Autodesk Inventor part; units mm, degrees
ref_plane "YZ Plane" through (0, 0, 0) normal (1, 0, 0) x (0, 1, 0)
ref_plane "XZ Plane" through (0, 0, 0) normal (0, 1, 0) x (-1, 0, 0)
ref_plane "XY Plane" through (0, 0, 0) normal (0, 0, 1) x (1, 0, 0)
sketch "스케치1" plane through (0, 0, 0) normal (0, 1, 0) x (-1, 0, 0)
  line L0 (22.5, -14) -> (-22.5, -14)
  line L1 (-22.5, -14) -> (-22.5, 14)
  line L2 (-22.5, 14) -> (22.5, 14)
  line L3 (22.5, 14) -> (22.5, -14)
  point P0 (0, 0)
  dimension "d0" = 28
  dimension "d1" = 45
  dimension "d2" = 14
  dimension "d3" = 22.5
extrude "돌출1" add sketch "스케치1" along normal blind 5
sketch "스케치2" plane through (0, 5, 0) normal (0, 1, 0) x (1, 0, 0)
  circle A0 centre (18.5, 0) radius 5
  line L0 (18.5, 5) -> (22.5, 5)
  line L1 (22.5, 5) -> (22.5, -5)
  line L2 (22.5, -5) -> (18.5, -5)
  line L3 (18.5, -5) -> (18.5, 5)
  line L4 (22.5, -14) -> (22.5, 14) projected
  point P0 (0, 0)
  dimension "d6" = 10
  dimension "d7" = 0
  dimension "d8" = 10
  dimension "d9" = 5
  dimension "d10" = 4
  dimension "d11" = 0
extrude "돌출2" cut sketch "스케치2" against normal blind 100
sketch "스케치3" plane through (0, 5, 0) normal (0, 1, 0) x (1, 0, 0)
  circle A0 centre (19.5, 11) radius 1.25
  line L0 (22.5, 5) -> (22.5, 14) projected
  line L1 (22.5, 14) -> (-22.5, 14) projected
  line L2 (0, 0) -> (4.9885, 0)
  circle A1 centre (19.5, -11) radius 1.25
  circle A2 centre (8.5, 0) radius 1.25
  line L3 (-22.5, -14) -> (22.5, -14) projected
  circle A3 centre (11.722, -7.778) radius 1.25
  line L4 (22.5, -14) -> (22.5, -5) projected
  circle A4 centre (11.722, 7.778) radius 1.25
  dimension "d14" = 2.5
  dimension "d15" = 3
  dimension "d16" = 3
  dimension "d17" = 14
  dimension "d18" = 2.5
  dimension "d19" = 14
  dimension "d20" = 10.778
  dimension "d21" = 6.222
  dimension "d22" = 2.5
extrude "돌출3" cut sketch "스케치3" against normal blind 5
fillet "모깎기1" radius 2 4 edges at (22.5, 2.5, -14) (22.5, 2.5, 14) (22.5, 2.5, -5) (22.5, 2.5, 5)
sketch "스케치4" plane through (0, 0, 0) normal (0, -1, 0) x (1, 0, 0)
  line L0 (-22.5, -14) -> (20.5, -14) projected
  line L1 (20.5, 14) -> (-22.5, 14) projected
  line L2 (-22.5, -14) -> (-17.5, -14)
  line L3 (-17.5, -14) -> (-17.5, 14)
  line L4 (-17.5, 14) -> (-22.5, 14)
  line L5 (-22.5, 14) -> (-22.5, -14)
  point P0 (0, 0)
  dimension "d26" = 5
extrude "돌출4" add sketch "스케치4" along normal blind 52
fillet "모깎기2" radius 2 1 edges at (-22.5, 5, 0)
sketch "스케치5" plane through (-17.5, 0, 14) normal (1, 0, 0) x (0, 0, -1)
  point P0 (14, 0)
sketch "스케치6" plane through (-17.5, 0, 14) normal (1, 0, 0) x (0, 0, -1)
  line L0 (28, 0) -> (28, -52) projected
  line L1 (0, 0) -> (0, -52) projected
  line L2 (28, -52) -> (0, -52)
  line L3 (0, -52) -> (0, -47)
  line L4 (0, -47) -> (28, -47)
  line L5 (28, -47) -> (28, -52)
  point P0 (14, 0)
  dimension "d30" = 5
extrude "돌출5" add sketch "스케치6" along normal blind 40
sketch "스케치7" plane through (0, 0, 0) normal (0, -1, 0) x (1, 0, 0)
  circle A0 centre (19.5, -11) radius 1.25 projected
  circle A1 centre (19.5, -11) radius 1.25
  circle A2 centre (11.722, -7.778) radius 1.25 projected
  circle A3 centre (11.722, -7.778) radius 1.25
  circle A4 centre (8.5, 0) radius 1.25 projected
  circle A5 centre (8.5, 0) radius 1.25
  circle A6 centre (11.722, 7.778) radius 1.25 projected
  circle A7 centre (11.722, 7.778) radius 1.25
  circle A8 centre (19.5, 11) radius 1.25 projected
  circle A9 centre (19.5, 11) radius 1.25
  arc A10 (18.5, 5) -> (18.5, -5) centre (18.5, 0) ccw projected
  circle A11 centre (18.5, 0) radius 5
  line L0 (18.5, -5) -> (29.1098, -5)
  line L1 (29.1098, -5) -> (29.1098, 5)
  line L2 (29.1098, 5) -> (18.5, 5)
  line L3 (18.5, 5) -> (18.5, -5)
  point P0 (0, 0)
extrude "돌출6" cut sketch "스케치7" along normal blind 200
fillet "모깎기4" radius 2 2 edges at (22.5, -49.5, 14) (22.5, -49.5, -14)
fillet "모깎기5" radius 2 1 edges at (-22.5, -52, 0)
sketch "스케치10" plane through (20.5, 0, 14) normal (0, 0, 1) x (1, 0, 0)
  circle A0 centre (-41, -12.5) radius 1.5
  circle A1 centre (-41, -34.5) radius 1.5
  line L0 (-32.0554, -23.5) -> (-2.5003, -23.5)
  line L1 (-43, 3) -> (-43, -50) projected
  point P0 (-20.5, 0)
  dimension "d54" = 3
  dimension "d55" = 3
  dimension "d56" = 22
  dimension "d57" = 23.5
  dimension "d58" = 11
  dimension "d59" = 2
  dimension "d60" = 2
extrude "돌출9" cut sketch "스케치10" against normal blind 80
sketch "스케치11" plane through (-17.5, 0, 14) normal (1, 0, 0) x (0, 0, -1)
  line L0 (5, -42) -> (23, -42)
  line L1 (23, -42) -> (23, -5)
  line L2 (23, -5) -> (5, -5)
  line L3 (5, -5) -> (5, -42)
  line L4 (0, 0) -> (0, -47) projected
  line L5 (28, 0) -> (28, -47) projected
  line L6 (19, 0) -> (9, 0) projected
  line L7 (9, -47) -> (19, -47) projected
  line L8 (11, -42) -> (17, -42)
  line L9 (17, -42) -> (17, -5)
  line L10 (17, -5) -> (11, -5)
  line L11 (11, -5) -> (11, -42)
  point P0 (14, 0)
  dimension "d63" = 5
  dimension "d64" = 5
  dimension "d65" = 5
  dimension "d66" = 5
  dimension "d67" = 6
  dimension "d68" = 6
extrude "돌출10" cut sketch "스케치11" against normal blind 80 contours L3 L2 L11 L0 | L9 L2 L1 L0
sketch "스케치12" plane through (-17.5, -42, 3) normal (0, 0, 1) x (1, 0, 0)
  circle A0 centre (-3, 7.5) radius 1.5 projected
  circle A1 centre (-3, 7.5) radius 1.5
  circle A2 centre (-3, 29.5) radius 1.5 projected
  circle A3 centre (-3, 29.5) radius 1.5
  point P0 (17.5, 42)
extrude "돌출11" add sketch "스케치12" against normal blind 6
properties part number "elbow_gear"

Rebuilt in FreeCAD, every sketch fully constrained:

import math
import FreeCAD as App
import Part
import Sketcher

V = App.Vector


def edges_at(feature, points):
    """Names of the edges that pass closest to the given points."""
    edges = feature.Shape.Edges
    near = lambda p: min(range(len(edges)), key=lambda i: edges[i].distToShape(Part.Vertex(*p))[0])
    return sorted({f"Edge{near(p) + 1}" for p in points})

doc = App.newDocument("Part")
body = doc.addObject("PartDesign::Body", "Body")

# Sketch on XZ plane
sketch1 = body.newObject("Sketcher::SketchObject", "Sketch")
sketch1.AttachmentSupport = (doc.getObject("XZ_Plane"), [""])
sketch1.MapMode = "FlatFace"
sketch1.addGeometry([
    Part.LineSegment(V(22.5, -14, 0), V(-22.5, -14, 0)),
    Part.LineSegment(V(-22.5, -14, 0), V(-22.5, 14, 0)),
    Part.LineSegment(V(-22.5, 14, 0), V(22.5, 14, 0)),
    Part.LineSegment(V(22.5, 14, 0), V(22.5, -14, 0)),
], False)
sketch1.addConstraint([
    Sketcher.Constraint("Coincident", 0, 2, 1, 1),
    Sketcher.Constraint("Coincident", 1, 2, 2, 1),
    Sketcher.Constraint("Coincident", 2, 2, 3, 1),
    Sketcher.Constraint("Coincident", 3, 2, 0, 1),
    Sketcher.Constraint("Horizontal", 0),
    Sketcher.Constraint("Vertical", 1),
    Sketcher.Constraint("Horizontal", 2),
    Sketcher.Constraint("Vertical", 3),
    Sketcher.Constraint("Symmetric", 0, 2, 2, 2, -1, 1),
    Sketcher.Constraint("DistanceX", 0, 2, 0, 1, 45.0),
    Sketcher.Constraint("DistanceY", 1, 1, 1, 2, 28.0),
])
pad1 = body.newObject("PartDesign::Pad", "Pad")
pad1.Profile = sketch1
pad1.Length = 5
pad1.Reversed = True

# Sketch on XZ plane
sketch2 = body.newObject("Sketcher::SketchObject", "Sketch001")
sketch2.AttachmentSupport = (doc.getObject("XZ_Plane"), [""])
sketch2.MapMode = "FlatFace"
sketch2.AttachmentOffset = App.Placement(V(0, 0, -5), App.Rotation())
sketch2.addGeometry([
    Part.ArcOfCircle(Part.Circle(V(18.5, 0, 0), V(0, 0, 1), 5), math.radians(90), math.radians(270)),  # 0
    Part.LineSegment(V(18.5, 5, 0), V(22.5, 5, 0)),  # 1
    Part.LineSegment(V(22.5, 5, 0), V(22.5, 3, 0)),  # 2
    Part.ArcOfCircle(Part.Circle(V(18.5, 0, 0), V(0, 0, 1), 5), math.radians(-36.869898), math.radians(36.869898)),  # 3
    Part.LineSegment(V(22.5, -3, 0), V(22.5, -5, 0)),  # 4
    Part.LineSegment(V(22.5, -5, 0), V(18.5, -5, 0)),  # 5
], False)
sketch2.addConstraint([
    Sketcher.Constraint("Tangent", 0, 1, 1, 1),
    Sketcher.Constraint("Coincident", 1, 2, 2, 1),
    Sketcher.Constraint("Coincident", 2, 2, 3, 2),
    Sketcher.Constraint("Coincident", 3, 1, 4, 1),
    Sketcher.Constraint("Coincident", 4, 2, 5, 1),
    Sketcher.Constraint("Tangent", 5, 2, 0, 2),
    Sketcher.Constraint("Horizontal", 1),
    Sketcher.Constraint("Vertical", 2),
    Sketcher.Constraint("Vertical", 4),
    Sketcher.Constraint("Horizontal", 5),
    Sketcher.Constraint("Coincident", 3, 3, 0, 3),
    Sketcher.Constraint("Equal", 0, 3),
    Sketcher.Constraint("Symmetric", 2, 2, 3, 1, -1),
    Sketcher.Constraint("Radius", 0, 5.0),
    Sketcher.Constraint("DistanceX", 1, 1, 1, 2, 4.0),
    Sketcher.Constraint("DistanceX", -1, 1, 0, 3, 18.5),
])
pocket1 = body.newObject("PartDesign::Pocket", "Pocket")
pocket1.Profile = sketch2
pocket1.Length = 100
pocket1.Reversed = True

# Sketch on XZ plane
sketch3 = body.newObject("Sketcher::SketchObject", "Sketch002")
sketch3.AttachmentSupport = (doc.getObject("XZ_Plane"), [""])
sketch3.MapMode = "FlatFace"
sketch3.AttachmentOffset = App.Placement(V(0, 0, -5), App.Rotation())
sketch3.addGeometry([
    Part.Circle(V(19.5, -11, 0), V(0, 0, 1), 1.25),  # 0
    Part.Circle(V(19.5, 11, 0), V(0, 0, 1), 1.25),  # 1
    Part.Circle(V(8.5, 0, 0), V(0, 0, 1), 1.25),  # 2
    Part.Circle(V(11.722, 7.778, 0), V(0, 0, 1), 1.25),  # 3
    Part.Circle(V(11.722, -7.778, 0), V(0, 0, 1), 1.25),  # 4
], False)
sketch3.addConstraint([
    Sketcher.Constraint("Equal", 0, 1),
    Sketcher.Constraint("Equal", 1, 2),
    Sketcher.Constraint("Equal", 2, 3),
    Sketcher.Constraint("Equal", 3, 4),
    Sketcher.Constraint("Symmetric", 0, 3, 1, 3, -1),
    Sketcher.Constraint("Symmetric", 3, 3, 4, 3, -1),
    Sketcher.Constraint("PointOnObject", 2, 3, -1),
    Sketcher.Constraint("Diameter", 0, 2.5),
    Sketcher.Constraint("DistanceY", 0, 3, -1, 1, 11.0),
    Sketcher.Constraint("DistanceX", 2, 3, 0, 3, 11.0),
    Sketcher.Constraint("DistanceX", -1, 1, 0, 3, 19.5),
    Sketcher.Constraint("DistanceX", -1, 1, 3, 3, 11.722),
    Sketcher.Constraint("DistanceY", -1, 1, 3, 3, 7.778),
])
pocket2 = body.newObject("PartDesign::Pocket", "Pocket001")
pocket2.Profile = sketch3
pocket2.Length = 5
pocket2.Reversed = True
doc.recompute()

fillet = body.newObject("PartDesign::Fillet", "Fillet")
fillet.Base = (pocket2, edges_at(pocket2, [
    (22.5, 2.5, -14),
    (22.5, 2.5, 14),
    (22.5, 2.5, -5),
    (22.5, 2.5, 5),
]))
fillet.Radius = 2

# Sketch on XZ plane
sketch4 = body.newObject("Sketcher::SketchObject", "Sketch003")
sketch4.AttachmentSupport = (doc.getObject("XZ_Plane"), [""])
sketch4.MapMode = "FlatFace"
sketch4.addGeometry([
    Part.LineSegment(V(-22.5, 14, 0), V(-22.5, -14, 0)),
    Part.LineSegment(V(-22.5, -14, 0), V(-17.5, -14, 0)),
    Part.LineSegment(V(-17.5, -14, 0), V(-17.5, 14, 0)),
    Part.LineSegment(V(-17.5, 14, 0), V(-22.5, 14, 0)),
], False)
sketch4.addConstraint([
    Sketcher.Constraint("Coincident", 0, 2, 1, 1),
    Sketcher.Constraint("Coincident", 1, 2, 2, 1),
    Sketcher.Constraint("Coincident", 2, 2, 3, 1),
    Sketcher.Constraint("Coincident", 3, 2, 0, 1),
    Sketcher.Constraint("Vertical", 0),
    Sketcher.Constraint("Horizontal", 1),
    Sketcher.Constraint("Vertical", 2),
    Sketcher.Constraint("Horizontal", 3),
    Sketcher.Constraint("DistanceX", 1, 1, 1, 2, 5.0),
    Sketcher.Constraint("DistanceY", 0, 2, 0, 1, 28.0),
    Sketcher.Constraint("DistanceY", 0, 2, -1, 1, 14.0),
    Sketcher.Constraint("DistanceX", 0, 2, -1, 1, 22.5),
])
pad2 = body.newObject("PartDesign::Pad", "Pad001")
pad2.Profile = sketch4
pad2.Length = 52
doc.recompute()

fillet2 = body.newObject("PartDesign::Fillet", "Fillet001")
fillet2.Base = (pad2, edges_at(pad2, [(-22.5, 5, 0)]))
fillet2.Radius = 2

# Sketch on YZ plane
sketch5 = body.newObject("Sketcher::SketchObject", "Sketch004")
sketch5.AttachmentSupport = (doc.getObject("YZ_Plane"), [""])
sketch5.MapMode = "FlatFace"
sketch5.AttachmentOffset = App.Placement(V(0, 0, -17.5), App.Rotation())
sketch5.addGeometry([
    Part.LineSegment(V(-52, -14, 0), V(-47, -14, 0)),
    Part.LineSegment(V(-47, -14, 0), V(-47, 14, 0)),
    Part.LineSegment(V(-47, 14, 0), V(-52, 14, 0)),
    Part.LineSegment(V(-52, 14, 0), V(-52, -14, 0)),
], False)
sketch5.addConstraint([
    Sketcher.Constraint("Coincident", 0, 2, 1, 1),
    Sketcher.Constraint("Coincident", 1, 2, 2, 1),
    Sketcher.Constraint("Coincident", 2, 2, 3, 1),
    Sketcher.Constraint("Coincident", 3, 2, 0, 1),
    Sketcher.Constraint("Horizontal", 0),
    Sketcher.Constraint("Vertical", 1),
    Sketcher.Constraint("Horizontal", 2),
    Sketcher.Constraint("Vertical", 3),
    Sketcher.Constraint("DistanceX", 0, 1, 0, 2, 5.0),
    Sketcher.Constraint("DistanceY", 1, 1, 1, 2, 28.0),
    Sketcher.Constraint("DistanceX", 0, 2, -1, 1, 47.0),
    Sketcher.Constraint("DistanceY", 0, 2, -1, 1, 14.0),
])
pad3 = body.newObject("PartDesign::Pad", "Pad002")
pad3.Profile = sketch5
pad3.Length = 40

# Sketch on XZ plane
sketch6 = body.newObject("Sketcher::SketchObject", "Sketch005")
sketch6.AttachmentSupport = (doc.getObject("XZ_Plane"), [""])
sketch6.MapMode = "FlatFace"
sketch6.addGeometry([
    Part.Circle(V(19.5, -11, 0), V(0, 0, 1), 1.25),  # 0
    Part.Circle(V(11.722, -7.778, 0), V(0, 0, 1), 1.25),  # 1
    Part.Circle(V(8.5, 0, 0), V(0, 0, 1), 1.25),  # 2
    Part.Circle(V(11.722, 7.778, 0), V(0, 0, 1), 1.25),  # 3
    Part.Circle(V(19.5, 11, 0), V(0, 0, 1), 1.25),  # 4
    Part.ArcOfCircle(Part.Circle(V(18.5, 0, 0), V(0, 0, 1), 5), math.radians(90), math.radians(270)),  # 5
    Part.LineSegment(V(18.5, -5, 0), V(29.1098, -5, 0)),  # 6
    Part.LineSegment(V(29.1098, -5, 0), V(29.1098, 5, 0)),  # 7
    Part.LineSegment(V(29.1098, 5, 0), V(18.5, 5, 0)),  # 8
], False)
sketch6.addConstraint([
    Sketcher.Constraint("Tangent", 5, 2, 6, 1),
    Sketcher.Constraint("Coincident", 6, 2, 7, 1),
    Sketcher.Constraint("Coincident", 7, 2, 8, 1),
    Sketcher.Constraint("Tangent", 8, 2, 5, 1),
    Sketcher.Constraint("Horizontal", 6),
    Sketcher.Constraint("Vertical", 7),
    Sketcher.Constraint("Horizontal", 8),
    Sketcher.Constraint("Equal", 0, 1),
    Sketcher.Constraint("Equal", 1, 2),
    Sketcher.Constraint("Equal", 2, 3),
    Sketcher.Constraint("Equal", 3, 4),
    Sketcher.Constraint("Symmetric", 1, 3, 3, 3, -1),
    Sketcher.Constraint("Symmetric", 0, 3, 4, 3, -1),
    Sketcher.Constraint("PointOnObject", 2, 3, -1),
    Sketcher.Constraint("PointOnObject", 5, 3, -1),
    Sketcher.Constraint("Radius", 5, 5.0),
    Sketcher.Constraint("Diameter", 0, 2.5),
    Sketcher.Constraint("DistanceY", 0, 3, -1, 1, 11.0),
    Sketcher.Constraint("DistanceX", 2, 3, 0, 3, 11.0),
    Sketcher.Constraint("DistanceX", 2, 3, 5, 3, 10.0),
    Sketcher.Constraint("DistanceX", -1, 1, 0, 3, 19.5),
    Sketcher.Constraint("DistanceX", 6, 1, 6, 2, 10.6098),
    Sketcher.Constraint("DistanceX", -1, 1, 1, 3, 11.722),
    Sketcher.Constraint("DistanceY", 1, 3, -1, 1, 7.778),
])
pocket3 = body.newObject("PartDesign::Pocket", "Pocket002")
pocket3.Profile = sketch6
pocket3.Length = 200
pocket3.Reversed = True
doc.recompute()

fillet3 = body.newObject("PartDesign::Fillet", "Fillet002")
fillet3.Base = (pocket3, edges_at(pocket3, [(22.5, -49.5, 14), (22.5, -49.5, -14)]))
fillet3.Radius = 2
doc.recompute()

fillet4 = body.newObject("PartDesign::Fillet", "Fillet003")
fillet4.Base = (fillet3, edges_at(fillet3, [(-22.5, -52, 0)]))
fillet4.Radius = 2

# Sketch on XY plane
sketch7 = body.newObject("Sketcher::SketchObject", "Sketch006")
sketch7.AttachmentSupport = (doc.getObject("XY_Plane"), [""])
sketch7.MapMode = "FlatFace"
sketch7.AttachmentOffset = App.Placement(V(0, 0, 14), App.Rotation())
sketch7.addGeometry([
    Part.Circle(V(-20.5, -12.5, 0), V(0, 0, 1), 1.5),
    Part.Circle(V(-20.5, -34.5, 0), V(0, 0, 1), 1.5),
], False)
sketch7.addConstraint([
    Sketcher.Constraint("Equal", 0, 1),
    Sketcher.Constraint("Vertical", 0, 3, 1, 3),
    Sketcher.Constraint("Diameter", 0, 3.0),
    Sketcher.Constraint("DistanceY", 1, 3, 0, 3, 22.0),
    Sketcher.Constraint("DistanceX", 0, 3, -1, 1, 20.5),
    Sketcher.Constraint("DistanceY", 0, 3, -1, 1, 12.5),
])
pocket4 = body.newObject("PartDesign::Pocket", "Pocket003")
pocket4.Profile = sketch7
pocket4.Length = 80

# Sketch on YZ plane
sketch8 = body.newObject("Sketcher::SketchObject", "Sketch007")
sketch8.AttachmentSupport = (doc.getObject("YZ_Plane"), [""])
sketch8.MapMode = "FlatFace"
sketch8.AttachmentOffset = App.Placement(V(0, 0, -17.5), App.Rotation())
sketch8.addGeometry([
    Part.LineSegment(V(-5, 9, 0), V(-42, 9, 0)),  # 0
    Part.LineSegment(V(-42, 9, 0), V(-42, 3, 0)),  # 1
    Part.LineSegment(V(-42, 3, 0), V(-5, 3, 0)),  # 2
    Part.LineSegment(V(-5, 3, 0), V(-5, 9, 0)),  # 3
    Part.LineSegment(V(-5, -3, 0), V(-42, -3, 0)),  # 4
    Part.LineSegment(V(-42, -3, 0), V(-42, -9, 0)),  # 5
    Part.LineSegment(V(-42, -9, 0), V(-5, -9, 0)),  # 6
    Part.LineSegment(V(-5, -9, 0), V(-5, -3, 0)),  # 7
], False)
sketch8.addConstraint([
    Sketcher.Constraint("Coincident", 0, 2, 1, 1),
    Sketcher.Constraint("Coincident", 1, 2, 2, 1),
    Sketcher.Constraint("Coincident", 2, 2, 3, 1),
    Sketcher.Constraint("Coincident", 3, 2, 0, 1),
    Sketcher.Constraint("Coincident", 4, 2, 5, 1),
    Sketcher.Constraint("Coincident", 5, 2, 6, 1),
    Sketcher.Constraint("Coincident", 6, 2, 7, 1),
    Sketcher.Constraint("Coincident", 7, 2, 4, 1),
    Sketcher.Constraint("Horizontal", 0),
    Sketcher.Constraint("Vertical", 1),
    Sketcher.Constraint("Horizontal", 2),
    Sketcher.Constraint("Vertical", 3),
    Sketcher.Constraint("Horizontal", 4),
    Sketcher.Constraint("Vertical", 5),
    Sketcher.Constraint("Horizontal", 6),
    Sketcher.Constraint("Vertical", 7),
    Sketcher.Constraint("Symmetric", 1, 2, 4, 2, -1),
    Sketcher.Constraint("Symmetric", 3, 2, 6, 2, -1),
    Sketcher.Constraint("DistanceY", 1, 2, 1, 1, 6.0),
    Sketcher.Constraint("DistanceX", 2, 2, -1, 1, 5.0),
    Sketcher.Constraint("DistanceY", 4, 2, 1, 2, 6.0),
    Sketcher.Constraint("DistanceX", 0, 2, 0, 1, 37.0),
])
pocket5 = body.newObject("PartDesign::Pocket", "Pocket004")
pocket5.Profile = sketch8
pocket5.Length = 80

# Sketch on XY plane
sketch9 = body.newObject("Sketcher::SketchObject", "Sketch008")
sketch9.AttachmentSupport = (doc.getObject("XY_Plane"), [""])
sketch9.MapMode = "FlatFace"
sketch9.AttachmentOffset = App.Placement(V(0, 0, 3), App.Rotation())
sketch9.addGeometry([
    Part.Circle(V(-20.5, -34.5, 0), V(0, 0, 1), 1.5),
    Part.Circle(V(-20.5, -12.5, 0), V(0, 0, 1), 1.5),
], False)
sketch9.addConstraint([
    Sketcher.Constraint("Equal", 0, 1),
    Sketcher.Constraint("Vertical", 0, 3, 1, 3),
    Sketcher.Constraint("Diameter", 0, 3.0),
    Sketcher.Constraint("DistanceY", 0, 3, 1, 3, 22.0),
    Sketcher.Constraint("DistanceX", 0, 3, -1, 1, 20.5),
    Sketcher.Constraint("DistanceY", 0, 3, -1, 1, 34.5),
])
pad4 = body.newObject("PartDesign::Pad", "Pad003")
pad4.Profile = sketch9
pad4.Length = 6
pad4.Reversed = True

doc.recompute()
